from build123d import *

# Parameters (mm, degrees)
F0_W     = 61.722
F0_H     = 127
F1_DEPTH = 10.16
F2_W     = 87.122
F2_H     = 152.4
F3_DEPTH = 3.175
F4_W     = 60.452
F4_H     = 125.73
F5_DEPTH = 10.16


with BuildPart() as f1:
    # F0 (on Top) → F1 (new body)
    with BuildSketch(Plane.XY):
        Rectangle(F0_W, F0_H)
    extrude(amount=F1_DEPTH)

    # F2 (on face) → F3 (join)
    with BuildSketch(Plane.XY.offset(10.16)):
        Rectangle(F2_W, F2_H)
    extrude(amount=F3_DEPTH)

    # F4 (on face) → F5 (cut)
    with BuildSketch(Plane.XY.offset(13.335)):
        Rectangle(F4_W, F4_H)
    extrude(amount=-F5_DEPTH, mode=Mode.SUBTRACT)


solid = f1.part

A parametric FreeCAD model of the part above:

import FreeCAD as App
import Part
import Sketcher

V = App.Vector
Q = App.Units.Quantity

doc = App.newDocument("Part")
params = doc.addObject("Spreadsheet::Sheet", "Params")
for row, (alias, value) in enumerate([
    ("sketch1_height", "5 in"),
    ("sketch1_width", "2.43 in"),
    ("pad1_length", "0.4 in"),
    ("sketch2_height", "6 in"),
    ("sketch2_width", "3.43 in"),
    ("pad2_length", "0.125 in"),
    ("sketch3_width", "2.38 in"),
    ("sketch3_height", "4.95 in"),
    ("pocket1_length", "0.4 in"),
], start=1):
    params.set(f"A{row}", alias)
    params.set(f"B{row}", "=" + value)
    params.setAlias(f"B{row}", alias)

body = doc.addObject("PartDesign::Body", "Body")

sketch1 = doc.addObject("Sketcher::SketchObject", "Sketch")
body.addObject(sketch1)
sketch1.AttachmentSupport = (doc.XY_Plane, [""])
sketch1.MapMode = "FlatFace"
sketch1.addGeometry(Part.LineSegment(V(-31, 64, 0), V(-31, -64, 0)), False)
sketch1.addGeometry(Part.LineSegment(V(-31, -64, 0), V(31, -64, 0)), False)
sketch1.addGeometry(Part.LineSegment(V(31, -64, 0), V(31, 64, 0)), False)
sketch1.addGeometry(Part.LineSegment(V(31, 64, 0), V(-31, 64, 0)), False)
sketch1.addConstraint(Sketcher.Constraint("Coincident", 0, 2, 1, 1))
sketch1.addConstraint(Sketcher.Constraint("Coincident", 1, 2, 2, 1))
sketch1.addConstraint(Sketcher.Constraint("Coincident", 2, 2, 3, 1))
sketch1.addConstraint(Sketcher.Constraint("Coincident", 3, 2, 0, 1))
sketch1.addConstraint(Sketcher.Constraint("Vertical", 0))
sketch1.addConstraint(Sketcher.Constraint("Horizontal", 1))
sketch1.addConstraint(Sketcher.Constraint("Vertical", 2))
sketch1.addConstraint(Sketcher.Constraint("Horizontal", 3))
sketch1.addConstraint(Sketcher.Constraint("Symmetric", 0, 2, 2, 2, -1, 1))
sketch1.addConstraint(Sketcher.Constraint("DistanceY", 0, 2, 0, 1, Q("5 in")))
sketch1.addConstraint(Sketcher.Constraint("DistanceX", 1, 1, 1, 2, Q("2.43 in")))
sketch1.setExpression("Constraints[9]", "Params.sketch1_height")
sketch1.setExpression("Constraints[10]", "Params.sketch1_width")
pad1 = doc.addObject("PartDesign::Pad", "Pad")
body.addObject(pad1)
pad1.Profile = sketch1
pad1.setExpression("Length", "Params.pad1_length")

sketch2 = doc.addObject("Sketcher::SketchObject", "Sketch001")
body.addObject(sketch2)
sketch2.AttachmentSupport = (doc.XY_Plane, [""])
sketch2.MapMode = "FlatFace"
sketch2.AttachmentOffset = App.Placement(V(0, 0, 0.4 * 25.4), App.Rotation())
sketch2.addGeometry(Part.LineSegment(V(-44, 76, 0), V(-44, -76, 0)), False)
sketch2.addGeometry(Part.LineSegment(V(-44, -76, 0), V(44, -76, 0)), False)
sketch2.addGeometry(Part.LineSegment(V(44, -76, 0), V(44, 76, 0)), False)
sketch2.addGeometry(Part.LineSegment(V(44, 76, 0), V(-44, 76, 0)), False)
sketch2.addConstraint(Sketcher.Constraint("Coincident", 0, 2, 1, 1))
sketch2.addConstraint(Sketcher.Constraint("Coincident", 1, 2, 2, 1))
sketch2.addConstraint(Sketcher.Constraint("Coincident", 2, 2, 3, 1))
sketch2.addConstraint(Sketcher.Constraint("Coincident", 3, 2, 0, 1))
sketch2.addConstraint(Sketcher.Constraint("Vertical", 0))
sketch2.addConstraint(Sketcher.Constraint("Horizontal", 1))
sketch2.addConstraint(Sketcher.Constraint("Vertical", 2))
sketch2.addConstraint(Sketcher.Constraint("Horizontal", 3))
sketch2.addConstraint(Sketcher.Constraint("Symmetric", 0, 2, 2, 2, -1, 1))
sketch2.addConstraint(Sketcher.Constraint("DistanceY", 0, 2, 0, 1, Q("6 in")))
sketch2.addConstraint(Sketcher.Constraint("DistanceX", 1, 1, 1, 2, Q("3.43 in")))
sketch2.setExpression("Constraints[9]", "Params.sketch2_height")
sketch2.setExpression("Constraints[10]", "Params.sketch2_width")
pad2 = doc.addObject("PartDesign::Pad", "Pad001")
body.addObject(pad2)
pad2.Profile = sketch2
pad2.setExpression("Length", "Params.pad2_length")

sketch3 = doc.addObject("Sketcher::SketchObject", "Sketch002")
body.addObject(sketch3)
sketch3.AttachmentSupport = (doc.XY_Plane, [""])
sketch3.MapMode = "FlatFace"
sketch3.AttachmentOffset = App.Placement(V(0, 0, 0.525 * 25.4), App.Rotation())
sketch3.addGeometry(Part.LineSegment(V(-30, 63, 0), V(-30, -63, 0)), False)
sketch3.addGeometry(Part.LineSegment(V(-30, -63, 0), V(30, -63, 0)), False)
sketch3.addGeometry(Part.LineSegment(V(30, -63, 0), V(30, 63, 0)), False)
sketch3.addGeometry(Part.LineSegment(V(30, 63, 0), V(-30, 63, 0)), False)
sketch3.addConstraint(Sketcher.Constraint("Coincident", 0, 2, 1, 1))
sketch3.addConstraint(Sketcher.Constraint("Coincident", 1, 2, 2, 1))
sketch3.addConstraint(Sketcher.Constraint("Coincident", 2, 2, 3, 1))
sketch3.addConstraint(Sketcher.Constraint("Coincident", 3, 2, 0, 1))
sketch3.addConstraint(Sketcher.Constraint("Vertical", 0))
sketch3.addConstraint(Sketcher.Constraint("Horizontal", 1))
sketch3.addConstraint(Sketcher.Constraint("Vertical", 2))
sketch3.addConstraint(Sketcher.Constraint("Horizontal", 3))
sketch3.addConstraint(Sketcher.Constraint("Symmetric", 0, 2, 2, 2, -1, 1))
sketch3.addConstraint(Sketcher.Constraint("DistanceX", 1, 1, 1, 2, Q("2.38 in")))
sketch3.addConstraint(Sketcher.Constraint("DistanceY", 0, 2, 0, 1, Q("4.95 in")))
sketch3.setExpression("Constraints[9]", "Params.sketch3_width")
sketch3.setExpression("Constraints[10]", "Params.sketch3_height")
pocket1 = doc.addObject("PartDesign::Pocket", "Pocket")
body.addObject(pocket1)
pocket1.Profile = sketch3
pocket1.setExpression("Length", "Params.pocket1_length")

doc.recompute()
